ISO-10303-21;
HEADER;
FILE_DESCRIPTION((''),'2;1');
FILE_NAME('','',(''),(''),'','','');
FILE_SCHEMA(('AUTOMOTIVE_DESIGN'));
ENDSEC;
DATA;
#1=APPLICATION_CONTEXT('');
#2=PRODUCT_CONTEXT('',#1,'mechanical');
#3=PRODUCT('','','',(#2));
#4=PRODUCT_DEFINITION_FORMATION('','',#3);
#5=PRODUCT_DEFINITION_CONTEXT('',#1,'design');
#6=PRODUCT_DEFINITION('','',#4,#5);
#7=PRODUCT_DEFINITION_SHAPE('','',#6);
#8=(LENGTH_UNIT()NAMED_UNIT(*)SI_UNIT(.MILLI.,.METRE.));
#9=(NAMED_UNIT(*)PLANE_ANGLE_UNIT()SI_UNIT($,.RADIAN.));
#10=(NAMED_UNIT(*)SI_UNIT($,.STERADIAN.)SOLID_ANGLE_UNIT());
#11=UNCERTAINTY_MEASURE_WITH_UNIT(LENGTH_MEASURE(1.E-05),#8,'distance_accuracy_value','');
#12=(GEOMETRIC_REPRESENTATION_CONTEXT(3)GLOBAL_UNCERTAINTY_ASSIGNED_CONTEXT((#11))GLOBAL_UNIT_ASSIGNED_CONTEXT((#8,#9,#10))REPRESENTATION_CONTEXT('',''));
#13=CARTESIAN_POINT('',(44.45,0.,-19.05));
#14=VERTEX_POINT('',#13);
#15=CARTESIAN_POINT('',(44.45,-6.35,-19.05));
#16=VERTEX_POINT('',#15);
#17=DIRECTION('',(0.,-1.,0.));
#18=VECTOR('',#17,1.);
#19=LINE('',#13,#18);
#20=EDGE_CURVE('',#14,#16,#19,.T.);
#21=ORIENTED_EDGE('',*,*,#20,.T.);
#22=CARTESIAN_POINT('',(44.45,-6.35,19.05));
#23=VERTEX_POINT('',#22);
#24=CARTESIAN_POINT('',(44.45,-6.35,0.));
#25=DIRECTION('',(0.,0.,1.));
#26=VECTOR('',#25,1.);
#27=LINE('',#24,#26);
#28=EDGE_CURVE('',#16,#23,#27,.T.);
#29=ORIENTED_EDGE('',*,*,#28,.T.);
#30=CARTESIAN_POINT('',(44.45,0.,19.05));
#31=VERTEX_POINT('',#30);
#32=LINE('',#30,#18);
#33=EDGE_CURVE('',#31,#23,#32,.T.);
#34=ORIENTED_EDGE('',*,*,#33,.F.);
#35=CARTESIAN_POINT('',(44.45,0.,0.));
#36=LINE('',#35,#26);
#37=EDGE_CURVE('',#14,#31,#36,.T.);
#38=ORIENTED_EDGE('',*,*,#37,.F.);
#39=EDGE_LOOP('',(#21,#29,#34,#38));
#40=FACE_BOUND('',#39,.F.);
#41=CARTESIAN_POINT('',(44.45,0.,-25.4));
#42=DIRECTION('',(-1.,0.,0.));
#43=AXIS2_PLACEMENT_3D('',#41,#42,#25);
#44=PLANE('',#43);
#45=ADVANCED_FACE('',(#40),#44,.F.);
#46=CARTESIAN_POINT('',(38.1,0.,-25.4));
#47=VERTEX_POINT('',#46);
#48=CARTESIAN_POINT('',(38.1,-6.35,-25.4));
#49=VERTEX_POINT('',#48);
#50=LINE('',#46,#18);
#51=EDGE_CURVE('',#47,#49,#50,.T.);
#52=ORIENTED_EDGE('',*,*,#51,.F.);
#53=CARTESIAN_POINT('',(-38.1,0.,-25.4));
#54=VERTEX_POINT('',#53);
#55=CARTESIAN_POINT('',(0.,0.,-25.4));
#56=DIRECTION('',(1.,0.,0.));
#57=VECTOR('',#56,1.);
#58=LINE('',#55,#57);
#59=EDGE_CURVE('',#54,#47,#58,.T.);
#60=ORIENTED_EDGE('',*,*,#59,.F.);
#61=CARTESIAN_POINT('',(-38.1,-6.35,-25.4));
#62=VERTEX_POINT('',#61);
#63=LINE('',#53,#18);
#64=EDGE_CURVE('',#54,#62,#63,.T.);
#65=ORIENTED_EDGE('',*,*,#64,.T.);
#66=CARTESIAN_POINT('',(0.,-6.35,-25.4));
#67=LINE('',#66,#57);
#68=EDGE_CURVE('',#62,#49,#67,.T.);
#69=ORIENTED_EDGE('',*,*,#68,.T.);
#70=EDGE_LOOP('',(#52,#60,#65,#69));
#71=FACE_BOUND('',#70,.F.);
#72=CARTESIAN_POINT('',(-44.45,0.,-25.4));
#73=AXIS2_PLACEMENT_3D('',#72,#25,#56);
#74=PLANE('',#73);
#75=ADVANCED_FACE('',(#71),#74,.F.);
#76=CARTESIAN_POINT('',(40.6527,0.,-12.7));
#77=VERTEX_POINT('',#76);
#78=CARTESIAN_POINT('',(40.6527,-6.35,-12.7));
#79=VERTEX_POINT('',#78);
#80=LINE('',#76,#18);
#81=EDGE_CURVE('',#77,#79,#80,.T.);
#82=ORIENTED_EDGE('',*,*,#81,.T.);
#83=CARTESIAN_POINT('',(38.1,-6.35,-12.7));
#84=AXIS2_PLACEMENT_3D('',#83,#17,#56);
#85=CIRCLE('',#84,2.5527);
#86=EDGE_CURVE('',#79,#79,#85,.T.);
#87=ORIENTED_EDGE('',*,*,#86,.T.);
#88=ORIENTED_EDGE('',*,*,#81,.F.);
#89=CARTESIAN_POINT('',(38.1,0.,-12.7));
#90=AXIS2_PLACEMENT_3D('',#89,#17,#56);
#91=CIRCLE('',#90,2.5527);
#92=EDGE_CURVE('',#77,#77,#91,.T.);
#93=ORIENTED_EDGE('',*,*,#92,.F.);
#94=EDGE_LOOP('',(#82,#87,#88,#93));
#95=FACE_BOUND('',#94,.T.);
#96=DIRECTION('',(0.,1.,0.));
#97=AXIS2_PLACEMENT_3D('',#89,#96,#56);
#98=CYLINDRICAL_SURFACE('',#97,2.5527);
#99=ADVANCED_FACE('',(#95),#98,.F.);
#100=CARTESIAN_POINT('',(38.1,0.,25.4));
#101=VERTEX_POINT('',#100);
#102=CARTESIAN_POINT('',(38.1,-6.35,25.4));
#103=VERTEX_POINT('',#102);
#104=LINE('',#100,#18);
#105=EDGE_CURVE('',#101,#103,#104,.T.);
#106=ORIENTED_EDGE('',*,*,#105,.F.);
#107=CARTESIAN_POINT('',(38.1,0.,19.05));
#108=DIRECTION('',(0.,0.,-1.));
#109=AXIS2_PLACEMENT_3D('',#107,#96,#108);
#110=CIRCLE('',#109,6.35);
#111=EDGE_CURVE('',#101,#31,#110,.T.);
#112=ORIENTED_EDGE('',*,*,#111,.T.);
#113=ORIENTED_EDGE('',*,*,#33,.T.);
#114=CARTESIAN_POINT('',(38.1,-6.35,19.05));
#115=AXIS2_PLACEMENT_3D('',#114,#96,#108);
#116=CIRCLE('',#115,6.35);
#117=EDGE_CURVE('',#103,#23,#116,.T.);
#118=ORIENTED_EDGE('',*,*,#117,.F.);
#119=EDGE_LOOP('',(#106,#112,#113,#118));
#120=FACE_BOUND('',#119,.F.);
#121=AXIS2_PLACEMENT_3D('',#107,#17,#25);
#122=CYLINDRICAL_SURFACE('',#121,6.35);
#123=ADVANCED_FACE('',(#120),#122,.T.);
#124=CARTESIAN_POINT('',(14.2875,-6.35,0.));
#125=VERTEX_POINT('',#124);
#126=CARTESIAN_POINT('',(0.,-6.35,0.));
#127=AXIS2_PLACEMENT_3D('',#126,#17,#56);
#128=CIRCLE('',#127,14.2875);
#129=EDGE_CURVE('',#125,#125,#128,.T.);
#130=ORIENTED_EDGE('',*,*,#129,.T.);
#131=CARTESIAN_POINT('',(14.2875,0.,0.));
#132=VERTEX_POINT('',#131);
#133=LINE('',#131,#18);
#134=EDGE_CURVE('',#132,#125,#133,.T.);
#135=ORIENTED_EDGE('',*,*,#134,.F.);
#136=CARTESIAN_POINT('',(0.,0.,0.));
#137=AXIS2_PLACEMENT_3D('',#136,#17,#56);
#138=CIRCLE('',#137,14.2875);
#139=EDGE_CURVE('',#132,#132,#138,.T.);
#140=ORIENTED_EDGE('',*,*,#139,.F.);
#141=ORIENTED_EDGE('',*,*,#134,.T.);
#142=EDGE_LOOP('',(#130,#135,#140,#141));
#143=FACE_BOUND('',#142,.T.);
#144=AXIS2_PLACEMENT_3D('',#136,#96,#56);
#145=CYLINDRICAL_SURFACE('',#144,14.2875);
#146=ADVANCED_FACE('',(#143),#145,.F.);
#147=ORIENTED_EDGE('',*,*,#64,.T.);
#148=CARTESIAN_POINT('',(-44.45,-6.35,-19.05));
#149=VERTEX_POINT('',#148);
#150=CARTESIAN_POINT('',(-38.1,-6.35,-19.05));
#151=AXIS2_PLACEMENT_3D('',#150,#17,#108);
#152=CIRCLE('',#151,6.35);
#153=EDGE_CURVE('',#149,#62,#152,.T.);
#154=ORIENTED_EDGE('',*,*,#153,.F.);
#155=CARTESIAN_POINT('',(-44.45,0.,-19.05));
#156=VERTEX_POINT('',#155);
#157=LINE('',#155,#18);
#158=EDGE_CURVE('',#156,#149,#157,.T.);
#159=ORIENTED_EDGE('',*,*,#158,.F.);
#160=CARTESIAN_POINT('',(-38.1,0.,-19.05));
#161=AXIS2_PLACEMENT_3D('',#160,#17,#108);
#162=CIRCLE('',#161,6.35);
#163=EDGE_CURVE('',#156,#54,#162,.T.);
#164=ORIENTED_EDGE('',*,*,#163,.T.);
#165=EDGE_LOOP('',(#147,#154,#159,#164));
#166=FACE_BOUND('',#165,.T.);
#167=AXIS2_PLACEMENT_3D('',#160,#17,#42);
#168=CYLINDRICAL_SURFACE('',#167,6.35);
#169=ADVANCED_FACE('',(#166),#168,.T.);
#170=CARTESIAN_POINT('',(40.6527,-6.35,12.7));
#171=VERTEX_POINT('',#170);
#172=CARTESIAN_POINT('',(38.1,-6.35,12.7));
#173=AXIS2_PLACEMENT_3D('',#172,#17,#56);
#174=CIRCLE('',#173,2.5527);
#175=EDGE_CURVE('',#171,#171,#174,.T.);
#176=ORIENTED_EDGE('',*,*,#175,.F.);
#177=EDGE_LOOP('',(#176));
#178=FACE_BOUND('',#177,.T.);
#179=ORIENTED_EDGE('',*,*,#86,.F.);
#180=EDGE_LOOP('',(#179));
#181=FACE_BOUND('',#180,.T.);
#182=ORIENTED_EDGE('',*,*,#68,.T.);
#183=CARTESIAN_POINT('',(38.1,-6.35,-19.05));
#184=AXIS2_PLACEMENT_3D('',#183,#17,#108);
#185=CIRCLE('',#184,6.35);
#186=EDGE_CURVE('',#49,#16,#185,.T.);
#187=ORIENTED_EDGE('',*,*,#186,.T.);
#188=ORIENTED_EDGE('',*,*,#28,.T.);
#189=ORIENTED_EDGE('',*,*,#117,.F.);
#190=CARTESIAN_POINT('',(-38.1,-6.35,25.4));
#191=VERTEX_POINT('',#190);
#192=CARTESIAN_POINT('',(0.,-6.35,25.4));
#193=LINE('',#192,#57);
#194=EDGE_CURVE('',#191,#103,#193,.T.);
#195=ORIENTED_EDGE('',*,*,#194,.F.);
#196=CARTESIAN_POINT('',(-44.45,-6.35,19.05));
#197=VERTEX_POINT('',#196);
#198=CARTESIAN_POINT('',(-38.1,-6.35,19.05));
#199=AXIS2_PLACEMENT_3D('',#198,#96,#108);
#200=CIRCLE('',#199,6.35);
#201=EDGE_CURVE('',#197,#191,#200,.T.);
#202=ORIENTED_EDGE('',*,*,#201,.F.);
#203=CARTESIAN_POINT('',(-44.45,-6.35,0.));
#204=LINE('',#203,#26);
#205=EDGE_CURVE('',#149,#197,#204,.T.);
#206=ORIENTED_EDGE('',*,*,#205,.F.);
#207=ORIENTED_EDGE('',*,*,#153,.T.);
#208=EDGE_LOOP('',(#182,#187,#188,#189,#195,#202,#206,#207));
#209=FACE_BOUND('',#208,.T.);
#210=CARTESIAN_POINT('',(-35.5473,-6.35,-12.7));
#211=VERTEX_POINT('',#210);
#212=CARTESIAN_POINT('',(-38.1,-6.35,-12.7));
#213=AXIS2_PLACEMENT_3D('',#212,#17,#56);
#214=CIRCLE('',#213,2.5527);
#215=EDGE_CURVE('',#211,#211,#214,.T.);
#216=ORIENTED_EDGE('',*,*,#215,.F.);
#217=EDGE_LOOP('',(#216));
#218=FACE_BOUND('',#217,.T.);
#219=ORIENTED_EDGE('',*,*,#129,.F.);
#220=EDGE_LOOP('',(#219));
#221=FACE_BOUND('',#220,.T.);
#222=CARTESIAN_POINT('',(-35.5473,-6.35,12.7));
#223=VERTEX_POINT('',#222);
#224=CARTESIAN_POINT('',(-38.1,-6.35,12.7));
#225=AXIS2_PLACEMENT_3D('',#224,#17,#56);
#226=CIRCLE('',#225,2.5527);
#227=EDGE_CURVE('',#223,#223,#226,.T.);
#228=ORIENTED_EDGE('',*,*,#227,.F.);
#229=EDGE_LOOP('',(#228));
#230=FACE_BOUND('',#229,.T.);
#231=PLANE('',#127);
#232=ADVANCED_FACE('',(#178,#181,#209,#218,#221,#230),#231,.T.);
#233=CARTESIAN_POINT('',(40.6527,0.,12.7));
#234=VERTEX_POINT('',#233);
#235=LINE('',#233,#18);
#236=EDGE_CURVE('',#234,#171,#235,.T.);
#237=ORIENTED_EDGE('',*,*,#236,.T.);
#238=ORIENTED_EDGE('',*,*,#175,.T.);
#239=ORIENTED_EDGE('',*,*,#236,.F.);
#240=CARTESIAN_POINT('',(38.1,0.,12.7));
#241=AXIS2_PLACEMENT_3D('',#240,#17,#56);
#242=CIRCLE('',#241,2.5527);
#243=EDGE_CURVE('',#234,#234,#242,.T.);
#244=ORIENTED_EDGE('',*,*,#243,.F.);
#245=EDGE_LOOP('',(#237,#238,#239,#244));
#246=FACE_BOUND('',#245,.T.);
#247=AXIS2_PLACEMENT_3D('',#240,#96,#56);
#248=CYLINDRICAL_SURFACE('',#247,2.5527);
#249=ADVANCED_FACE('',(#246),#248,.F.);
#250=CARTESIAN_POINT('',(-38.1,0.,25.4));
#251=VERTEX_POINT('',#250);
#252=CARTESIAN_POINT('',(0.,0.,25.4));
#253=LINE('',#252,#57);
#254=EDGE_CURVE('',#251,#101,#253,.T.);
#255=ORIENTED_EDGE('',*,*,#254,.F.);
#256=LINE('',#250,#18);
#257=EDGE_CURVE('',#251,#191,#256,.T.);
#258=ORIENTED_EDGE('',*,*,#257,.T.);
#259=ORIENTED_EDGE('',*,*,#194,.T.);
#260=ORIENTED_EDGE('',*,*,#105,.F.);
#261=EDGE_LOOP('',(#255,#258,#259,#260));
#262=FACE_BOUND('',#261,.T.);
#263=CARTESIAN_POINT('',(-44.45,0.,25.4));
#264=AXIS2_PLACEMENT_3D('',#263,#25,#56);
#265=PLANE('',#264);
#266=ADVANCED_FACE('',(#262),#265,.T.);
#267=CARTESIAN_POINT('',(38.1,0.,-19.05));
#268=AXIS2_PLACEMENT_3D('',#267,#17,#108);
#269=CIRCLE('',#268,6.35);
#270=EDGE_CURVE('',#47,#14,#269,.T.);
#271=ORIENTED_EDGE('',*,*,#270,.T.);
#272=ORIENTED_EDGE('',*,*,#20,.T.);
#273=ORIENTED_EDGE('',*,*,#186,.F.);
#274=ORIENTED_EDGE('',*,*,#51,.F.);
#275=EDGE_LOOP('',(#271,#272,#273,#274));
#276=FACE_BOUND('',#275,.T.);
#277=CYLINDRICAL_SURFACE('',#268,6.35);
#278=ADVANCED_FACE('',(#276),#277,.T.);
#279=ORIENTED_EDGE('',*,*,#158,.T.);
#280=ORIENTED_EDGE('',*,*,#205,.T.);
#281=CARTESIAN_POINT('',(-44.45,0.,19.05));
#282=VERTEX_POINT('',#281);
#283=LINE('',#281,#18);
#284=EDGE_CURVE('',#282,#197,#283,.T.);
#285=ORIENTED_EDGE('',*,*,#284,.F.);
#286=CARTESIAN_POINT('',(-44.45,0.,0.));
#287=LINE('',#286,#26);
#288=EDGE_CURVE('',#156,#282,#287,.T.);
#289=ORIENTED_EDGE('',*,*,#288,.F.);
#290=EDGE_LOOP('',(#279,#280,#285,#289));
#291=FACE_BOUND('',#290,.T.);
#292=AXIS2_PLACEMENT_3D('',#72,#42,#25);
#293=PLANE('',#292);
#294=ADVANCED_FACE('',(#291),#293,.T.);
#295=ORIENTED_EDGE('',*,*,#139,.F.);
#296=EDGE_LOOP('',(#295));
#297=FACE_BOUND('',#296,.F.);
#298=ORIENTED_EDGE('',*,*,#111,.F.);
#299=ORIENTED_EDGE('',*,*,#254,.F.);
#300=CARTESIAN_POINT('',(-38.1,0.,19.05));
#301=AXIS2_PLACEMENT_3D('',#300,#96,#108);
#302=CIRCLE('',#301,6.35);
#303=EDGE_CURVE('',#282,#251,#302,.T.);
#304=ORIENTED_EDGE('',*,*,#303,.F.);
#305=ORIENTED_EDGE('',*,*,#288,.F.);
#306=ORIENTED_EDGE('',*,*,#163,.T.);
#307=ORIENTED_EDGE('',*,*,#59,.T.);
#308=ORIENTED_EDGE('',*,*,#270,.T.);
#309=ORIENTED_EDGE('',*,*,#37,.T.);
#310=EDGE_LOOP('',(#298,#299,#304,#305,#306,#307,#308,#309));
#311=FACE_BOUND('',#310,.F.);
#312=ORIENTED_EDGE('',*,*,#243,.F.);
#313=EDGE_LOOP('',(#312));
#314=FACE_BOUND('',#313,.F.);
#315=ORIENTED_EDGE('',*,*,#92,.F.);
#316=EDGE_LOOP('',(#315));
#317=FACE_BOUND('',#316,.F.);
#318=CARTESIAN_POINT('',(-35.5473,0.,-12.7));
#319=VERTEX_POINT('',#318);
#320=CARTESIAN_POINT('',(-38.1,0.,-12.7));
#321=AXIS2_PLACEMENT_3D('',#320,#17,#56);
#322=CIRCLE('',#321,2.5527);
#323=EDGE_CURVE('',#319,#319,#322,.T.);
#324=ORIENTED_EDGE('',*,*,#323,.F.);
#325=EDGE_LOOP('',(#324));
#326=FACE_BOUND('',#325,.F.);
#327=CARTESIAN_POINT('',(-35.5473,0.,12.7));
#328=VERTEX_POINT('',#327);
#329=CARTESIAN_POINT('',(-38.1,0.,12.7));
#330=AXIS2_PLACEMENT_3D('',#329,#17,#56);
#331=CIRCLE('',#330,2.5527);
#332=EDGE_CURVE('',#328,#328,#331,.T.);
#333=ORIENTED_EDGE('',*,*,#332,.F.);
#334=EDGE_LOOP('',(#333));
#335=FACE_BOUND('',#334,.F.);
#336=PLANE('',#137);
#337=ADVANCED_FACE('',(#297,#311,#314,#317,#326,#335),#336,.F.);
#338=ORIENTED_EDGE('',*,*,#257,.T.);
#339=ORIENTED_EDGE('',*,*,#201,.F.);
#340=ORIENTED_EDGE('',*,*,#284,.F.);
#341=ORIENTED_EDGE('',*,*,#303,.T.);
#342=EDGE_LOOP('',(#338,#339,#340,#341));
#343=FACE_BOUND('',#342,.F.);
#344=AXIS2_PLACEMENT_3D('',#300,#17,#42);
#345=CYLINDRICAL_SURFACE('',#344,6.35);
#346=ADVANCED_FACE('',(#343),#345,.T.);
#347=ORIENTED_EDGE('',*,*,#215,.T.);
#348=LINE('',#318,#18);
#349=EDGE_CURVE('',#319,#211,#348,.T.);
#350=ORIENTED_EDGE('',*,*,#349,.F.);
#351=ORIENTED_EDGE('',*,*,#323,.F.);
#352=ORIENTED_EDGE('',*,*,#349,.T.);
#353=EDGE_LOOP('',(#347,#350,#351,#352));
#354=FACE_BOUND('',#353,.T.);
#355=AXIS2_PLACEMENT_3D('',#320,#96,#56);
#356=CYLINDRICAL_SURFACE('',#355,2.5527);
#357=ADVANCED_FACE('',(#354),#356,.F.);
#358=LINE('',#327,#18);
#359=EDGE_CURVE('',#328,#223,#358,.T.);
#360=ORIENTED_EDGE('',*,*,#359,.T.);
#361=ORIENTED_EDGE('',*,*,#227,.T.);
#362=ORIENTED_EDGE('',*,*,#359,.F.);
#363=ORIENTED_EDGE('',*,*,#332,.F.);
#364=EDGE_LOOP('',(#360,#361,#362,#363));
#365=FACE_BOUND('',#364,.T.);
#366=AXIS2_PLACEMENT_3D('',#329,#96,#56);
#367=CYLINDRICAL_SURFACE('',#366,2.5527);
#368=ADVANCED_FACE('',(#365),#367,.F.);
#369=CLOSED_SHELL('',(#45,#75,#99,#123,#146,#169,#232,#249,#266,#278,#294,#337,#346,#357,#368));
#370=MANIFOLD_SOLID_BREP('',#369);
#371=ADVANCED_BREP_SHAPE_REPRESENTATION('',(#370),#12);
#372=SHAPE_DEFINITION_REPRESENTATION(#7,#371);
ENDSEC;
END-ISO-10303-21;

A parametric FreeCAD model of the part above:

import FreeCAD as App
import Part
import Sketcher
from FreeCAD import Vector
Q = App.Units.Quantity


def edges_at(feature, points):
    """Names of the edges that pass closest to the given points."""
    edges = feature.Shape.Edges
    near = lambda p: min(range(len(edges)), key=lambda i: edges[i].distToShape(Part.Vertex(*p))[0])
    return sorted({f"Edge{near(p) + 1}" for p in points})


def add_polygon(sketch, points):
    """Adds a closed chain of lines whose ends are joined by coincident constraints."""
    first, n = sketch.GeometryCount, len(points)
    for a, b in zip(points, points[1:] + points[:1]):
        sketch.addGeometry(Part.LineSegment(App.Vector(*a, 0), App.Vector(*b, 0)), False)
    for i in range(n):
        sketch.addConstraint(Sketcher.Constraint("Coincident", first + i, 2, first + (i + 1) % n, 1))

doc = App.newDocument("Part")
body = doc.addObject("PartDesign::Body", "Body")

sketch1 = body.newObject("Sketcher::SketchObject", "Sketch")
sketch1.AttachmentSupport = (doc.getObject("XZ_Plane"), [""])
sketch1.MapMode = "FlatFace"
add_polygon(sketch1, [(-44.45, 25.4), (-44.45, -25.4), (44.45, -25.4), (44.45, 25.4)])
sketch1.addGeometry(Part.Circle(Vector(-38.1, -12.7, 0), Vector(0, 0, 1), 2.5527), False)
sketch1.addGeometry(Part.Circle(Vector(38.1, -12.7, 0), Vector(0, 0, 1), 2.5527), False)
sketch1.addGeometry(Part.Circle(Vector(-38.1, 12.7, 0), Vector(0, 0, 1), 2.5527), False)
sketch1.addGeometry(Part.Circle(Vector(0, 0, 0), Vector(0, 0, 1), 14.2875), False)
sketch1.addGeometry(Part.Circle(Vector(38.1, 12.7, 0), Vector(0, 0, 1), 2.5527), False)
sketch1.addConstraint([
    Sketcher.Constraint("Vertical", 0),
    Sketcher.Constraint("Horizontal", 1),
    Sketcher.Constraint("Vertical", 2),
    Sketcher.Constraint("Horizontal", 3),
    Sketcher.Constraint("Coincident", 7, 3, -1, 1),
    Sketcher.Constraint("Equal", 4, 5),
    Sketcher.Constraint("Equal", 5, 6),
    Sketcher.Constraint("Equal", 6, 8),
    Sketcher.Constraint("Symmetric", 5, 3, 6, 3, -1, 1),
    Sketcher.Constraint("Symmetric", 4, 3, 8, 3, -1, 1),
    Sketcher.Constraint("Symmetric", 0, 2, 2, 2, -1, 1),
    Sketcher.Constraint("Symmetric", 4, 3, 5, 3, -2),
    Sketcher.Constraint("DistanceY", 0, 2, 0, 1, Q("2 in")),
    Sketcher.Constraint("Diameter", 4, Q("0.201 in")),
    Sketcher.Constraint("Diameter", 7, Q("1.125 in")),
    Sketcher.Constraint("DistanceX", 1, 1, 1, 2, Q("3.5 in")),
    Sketcher.Constraint("DistanceX", 4, 3, 5, 3, Q("3 in")),
    Sketcher.Constraint("DistanceY", 4, 3, 6, 3, Q("1 in")),
])
pad1 = body.newObject("PartDesign::Pad", "Pad")
pad1.Profile = sketch1
pad1.Length = Q("0.25 in")
doc.recompute()

fillet = body.newObject("PartDesign::Fillet", "Fillet")
fillet.Base = (pad1, edges_at(pad1, [
    (-44.45, -3.175, 25.4),
    (-44.45, -3.175, -25.4),
    (44.45, -3.175, -25.4),
    (44.45, -3.175, 25.4),
]))
fillet.Radius = Q("0.25 in")

doc.recompute()
